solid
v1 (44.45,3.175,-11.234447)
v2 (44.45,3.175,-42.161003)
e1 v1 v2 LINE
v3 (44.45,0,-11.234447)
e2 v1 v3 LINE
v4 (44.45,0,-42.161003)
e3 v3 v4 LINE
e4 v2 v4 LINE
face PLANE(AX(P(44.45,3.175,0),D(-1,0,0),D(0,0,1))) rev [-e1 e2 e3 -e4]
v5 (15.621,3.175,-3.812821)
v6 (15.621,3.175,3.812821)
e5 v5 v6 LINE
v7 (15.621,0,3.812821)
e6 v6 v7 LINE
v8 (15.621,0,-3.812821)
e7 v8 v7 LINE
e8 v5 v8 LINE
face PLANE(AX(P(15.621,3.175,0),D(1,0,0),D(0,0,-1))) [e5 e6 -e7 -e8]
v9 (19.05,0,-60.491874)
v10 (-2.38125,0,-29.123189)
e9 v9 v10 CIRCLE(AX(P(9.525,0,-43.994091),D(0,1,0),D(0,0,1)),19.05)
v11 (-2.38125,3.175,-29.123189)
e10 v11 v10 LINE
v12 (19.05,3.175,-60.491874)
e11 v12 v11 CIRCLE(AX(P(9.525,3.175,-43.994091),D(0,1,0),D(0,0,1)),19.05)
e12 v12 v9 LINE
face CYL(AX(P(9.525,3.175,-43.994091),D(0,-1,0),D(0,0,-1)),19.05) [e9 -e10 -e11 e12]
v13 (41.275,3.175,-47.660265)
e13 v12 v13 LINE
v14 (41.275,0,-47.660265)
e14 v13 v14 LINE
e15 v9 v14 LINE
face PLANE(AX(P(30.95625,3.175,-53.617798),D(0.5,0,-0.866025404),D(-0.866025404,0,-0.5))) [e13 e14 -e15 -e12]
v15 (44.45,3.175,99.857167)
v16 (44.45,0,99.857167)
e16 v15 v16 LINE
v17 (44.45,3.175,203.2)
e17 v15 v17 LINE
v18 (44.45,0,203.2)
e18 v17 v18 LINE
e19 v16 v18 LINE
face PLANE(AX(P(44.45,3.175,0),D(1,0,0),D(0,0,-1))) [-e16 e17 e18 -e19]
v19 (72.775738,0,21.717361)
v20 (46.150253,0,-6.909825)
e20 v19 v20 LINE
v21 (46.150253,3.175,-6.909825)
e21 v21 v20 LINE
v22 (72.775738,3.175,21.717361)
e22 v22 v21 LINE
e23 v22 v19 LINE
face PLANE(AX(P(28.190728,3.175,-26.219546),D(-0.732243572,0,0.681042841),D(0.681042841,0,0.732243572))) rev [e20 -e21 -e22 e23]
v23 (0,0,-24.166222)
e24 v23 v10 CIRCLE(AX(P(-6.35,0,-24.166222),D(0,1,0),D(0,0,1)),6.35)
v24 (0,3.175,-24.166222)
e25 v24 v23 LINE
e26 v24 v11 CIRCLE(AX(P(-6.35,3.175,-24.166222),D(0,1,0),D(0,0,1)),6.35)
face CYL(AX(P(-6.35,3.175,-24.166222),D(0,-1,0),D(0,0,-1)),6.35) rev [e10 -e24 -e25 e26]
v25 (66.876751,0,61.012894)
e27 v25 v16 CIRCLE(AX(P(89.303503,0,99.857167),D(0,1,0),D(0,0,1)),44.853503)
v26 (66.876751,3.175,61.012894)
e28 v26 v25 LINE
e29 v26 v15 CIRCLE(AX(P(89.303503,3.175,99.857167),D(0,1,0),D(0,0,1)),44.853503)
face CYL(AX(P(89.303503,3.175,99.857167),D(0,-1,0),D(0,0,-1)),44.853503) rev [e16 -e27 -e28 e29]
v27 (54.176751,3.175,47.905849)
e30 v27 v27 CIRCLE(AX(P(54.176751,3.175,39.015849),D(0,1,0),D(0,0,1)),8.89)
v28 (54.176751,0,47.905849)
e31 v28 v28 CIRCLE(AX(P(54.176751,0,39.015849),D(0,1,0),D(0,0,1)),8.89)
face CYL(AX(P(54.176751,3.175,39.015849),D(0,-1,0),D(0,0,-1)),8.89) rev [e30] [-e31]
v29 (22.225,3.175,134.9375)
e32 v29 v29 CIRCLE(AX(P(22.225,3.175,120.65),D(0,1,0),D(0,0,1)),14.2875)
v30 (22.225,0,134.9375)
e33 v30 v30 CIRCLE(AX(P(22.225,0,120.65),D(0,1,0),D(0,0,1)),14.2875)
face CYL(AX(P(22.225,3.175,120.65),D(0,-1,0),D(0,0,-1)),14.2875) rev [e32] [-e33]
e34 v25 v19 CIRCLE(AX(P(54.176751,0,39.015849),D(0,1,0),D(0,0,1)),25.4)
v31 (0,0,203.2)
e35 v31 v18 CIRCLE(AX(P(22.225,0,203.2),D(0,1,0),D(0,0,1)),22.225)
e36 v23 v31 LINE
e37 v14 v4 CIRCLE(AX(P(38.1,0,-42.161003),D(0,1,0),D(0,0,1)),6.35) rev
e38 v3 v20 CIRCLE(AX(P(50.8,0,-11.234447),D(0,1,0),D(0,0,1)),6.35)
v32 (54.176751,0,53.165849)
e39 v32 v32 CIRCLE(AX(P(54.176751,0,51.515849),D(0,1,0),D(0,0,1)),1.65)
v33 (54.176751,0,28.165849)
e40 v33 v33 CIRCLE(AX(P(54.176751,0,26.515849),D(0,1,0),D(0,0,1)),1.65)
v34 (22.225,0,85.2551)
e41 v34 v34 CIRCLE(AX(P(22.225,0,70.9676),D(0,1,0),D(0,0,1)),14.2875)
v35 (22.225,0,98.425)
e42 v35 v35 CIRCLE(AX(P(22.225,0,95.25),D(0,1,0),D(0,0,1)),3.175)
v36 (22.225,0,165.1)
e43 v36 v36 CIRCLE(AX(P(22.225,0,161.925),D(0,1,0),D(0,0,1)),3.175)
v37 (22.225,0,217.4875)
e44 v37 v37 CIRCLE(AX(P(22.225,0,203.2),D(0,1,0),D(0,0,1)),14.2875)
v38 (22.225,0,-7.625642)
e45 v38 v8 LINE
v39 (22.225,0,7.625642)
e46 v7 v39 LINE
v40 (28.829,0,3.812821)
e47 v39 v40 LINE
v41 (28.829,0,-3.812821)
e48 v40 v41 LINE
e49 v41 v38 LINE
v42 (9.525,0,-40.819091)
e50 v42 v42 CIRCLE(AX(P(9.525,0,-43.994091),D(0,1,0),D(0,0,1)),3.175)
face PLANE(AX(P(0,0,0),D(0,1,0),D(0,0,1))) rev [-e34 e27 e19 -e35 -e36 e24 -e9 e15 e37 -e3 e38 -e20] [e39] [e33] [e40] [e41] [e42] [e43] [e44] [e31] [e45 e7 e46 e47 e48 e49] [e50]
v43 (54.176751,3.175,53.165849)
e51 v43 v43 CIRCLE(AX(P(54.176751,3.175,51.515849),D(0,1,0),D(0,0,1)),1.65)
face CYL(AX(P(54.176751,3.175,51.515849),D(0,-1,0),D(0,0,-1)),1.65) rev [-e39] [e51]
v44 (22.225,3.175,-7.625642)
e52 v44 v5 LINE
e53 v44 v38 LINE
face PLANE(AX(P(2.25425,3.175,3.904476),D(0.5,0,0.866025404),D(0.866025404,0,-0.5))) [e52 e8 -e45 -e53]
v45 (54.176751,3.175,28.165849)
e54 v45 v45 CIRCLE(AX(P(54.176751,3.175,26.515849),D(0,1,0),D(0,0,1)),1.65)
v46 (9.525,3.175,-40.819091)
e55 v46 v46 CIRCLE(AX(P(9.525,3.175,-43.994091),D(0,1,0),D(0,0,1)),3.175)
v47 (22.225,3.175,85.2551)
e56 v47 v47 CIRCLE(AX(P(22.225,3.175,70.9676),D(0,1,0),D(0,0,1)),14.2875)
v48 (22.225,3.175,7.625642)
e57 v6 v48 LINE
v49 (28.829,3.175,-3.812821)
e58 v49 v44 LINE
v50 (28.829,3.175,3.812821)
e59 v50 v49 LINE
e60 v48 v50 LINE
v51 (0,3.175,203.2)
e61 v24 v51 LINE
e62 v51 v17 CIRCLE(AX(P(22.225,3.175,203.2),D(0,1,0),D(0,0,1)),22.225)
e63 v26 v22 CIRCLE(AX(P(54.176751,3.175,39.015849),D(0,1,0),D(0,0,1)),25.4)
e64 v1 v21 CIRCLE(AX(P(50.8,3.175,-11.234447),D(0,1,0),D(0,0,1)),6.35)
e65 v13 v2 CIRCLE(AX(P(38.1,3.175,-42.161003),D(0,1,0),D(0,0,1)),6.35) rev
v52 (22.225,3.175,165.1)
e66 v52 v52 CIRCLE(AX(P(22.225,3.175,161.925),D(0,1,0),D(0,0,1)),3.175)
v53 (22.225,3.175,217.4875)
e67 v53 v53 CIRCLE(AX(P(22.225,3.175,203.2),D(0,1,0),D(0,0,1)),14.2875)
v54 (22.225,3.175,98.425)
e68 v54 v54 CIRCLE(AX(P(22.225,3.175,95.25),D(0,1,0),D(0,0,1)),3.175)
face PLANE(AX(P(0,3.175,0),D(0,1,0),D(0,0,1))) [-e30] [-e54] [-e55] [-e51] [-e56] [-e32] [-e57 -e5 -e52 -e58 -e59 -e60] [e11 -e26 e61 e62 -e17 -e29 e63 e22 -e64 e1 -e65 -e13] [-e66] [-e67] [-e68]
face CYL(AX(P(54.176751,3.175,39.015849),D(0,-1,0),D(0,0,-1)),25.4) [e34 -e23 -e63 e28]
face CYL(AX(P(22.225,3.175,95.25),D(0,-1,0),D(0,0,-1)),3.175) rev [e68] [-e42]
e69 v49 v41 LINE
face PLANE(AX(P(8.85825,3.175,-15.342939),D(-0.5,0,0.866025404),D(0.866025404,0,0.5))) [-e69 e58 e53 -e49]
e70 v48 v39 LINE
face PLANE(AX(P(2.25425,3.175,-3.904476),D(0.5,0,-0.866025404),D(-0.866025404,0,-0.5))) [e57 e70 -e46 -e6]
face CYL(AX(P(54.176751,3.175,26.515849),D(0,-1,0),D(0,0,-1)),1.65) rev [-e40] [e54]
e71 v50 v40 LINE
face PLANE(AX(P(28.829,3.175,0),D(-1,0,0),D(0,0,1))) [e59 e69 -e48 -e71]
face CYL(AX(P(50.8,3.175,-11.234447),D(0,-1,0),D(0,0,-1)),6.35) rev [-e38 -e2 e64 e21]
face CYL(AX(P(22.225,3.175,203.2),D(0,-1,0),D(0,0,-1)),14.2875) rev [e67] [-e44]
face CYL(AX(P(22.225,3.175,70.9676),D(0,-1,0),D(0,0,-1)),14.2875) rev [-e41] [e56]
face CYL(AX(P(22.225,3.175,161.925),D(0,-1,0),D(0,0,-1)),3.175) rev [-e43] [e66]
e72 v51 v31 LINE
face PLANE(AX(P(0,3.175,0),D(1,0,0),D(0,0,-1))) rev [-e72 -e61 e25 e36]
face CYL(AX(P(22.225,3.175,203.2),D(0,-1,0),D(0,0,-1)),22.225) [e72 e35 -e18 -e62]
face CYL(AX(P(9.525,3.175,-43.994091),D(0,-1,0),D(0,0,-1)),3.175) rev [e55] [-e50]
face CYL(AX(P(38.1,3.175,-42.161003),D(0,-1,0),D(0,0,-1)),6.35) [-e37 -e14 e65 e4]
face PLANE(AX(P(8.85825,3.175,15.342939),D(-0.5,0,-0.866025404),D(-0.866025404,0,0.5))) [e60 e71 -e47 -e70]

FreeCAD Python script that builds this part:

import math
import FreeCAD as App
import Part
import Sketcher
from FreeCAD import Vector
Q = App.Units.Quantity


def add_polygon(sketch, points):
    """Adds a closed chain of lines whose ends are joined by coincident constraints."""
    first, n = sketch.GeometryCount, len(points)
    for a, b in zip(points, points[1:] + points[:1]):
        sketch.addGeometry(Part.LineSegment(App.Vector(*a, 0), App.Vector(*b, 0)), False)
    for i in range(n):
        sketch.addConstraint(Sketcher.Constraint("Coincident", first + i, 2, first + (i + 1) % n, 1))

doc = App.newDocument("Part")
params = doc.addObject("Spreadsheet::Sheet", "Params")
for row, (alias, value) in enumerate([
    ("sketch1_radius", "1 in"),
    ("sketch1_diameter", "0.7 in"),
    ("sketch1_diameter2", "0.25 in"),
    ("sketch1_radius2", "0.25 in"),
    ("sketch1_radius3", "0.75 in"),
    ("pad1_length", "0.125 in"),
], start=1):
    params.set(f"A{row}", alias)
    params.set(f"B{row}", "=" + value)
    params.setAlias(f"B{row}", alias)

body = doc.addObject("PartDesign::Body", "Body")

sketch1 = body.newObject("Sketcher::SketchObject", "Sketch")
sketch1.AttachmentSupport = (doc.getObject("XZ_Plane"), [""])
sketch1.MapMode = "FlatFace"
sketch1.addGeometry(Part.LineSegment(Vector(0, -24.166222, 0), Vector(0, 203.2, 0)), False)
sketch1.addGeometry(Part.ArcOfCircle(Part.Circle(Vector(22.225, 203.2, 0), Vector(0, 0, 1), 22.225), math.radians(0), math.radians(180)), False)
sketch1.addGeometry(Part.LineSegment(Vector(44.45, 203.2, 0), Vector(44.45, 99.857167, 0)), False)
sketch1.addGeometry(Part.ArcOfCircle(Part.Circle(Vector(89.303503, 99.857167, 0), Vector(0, 0, 1), 44.853503), math.radians(180), math.radians(240)), False)
sketch1.addGeometry(Part.ArcOfCircle(Part.Circle(Vector(54.176751, 39.015849, 0), Vector(0, 0, 1), 25.4), math.radians(-42.925188), math.radians(60)), False)
sketch1.addGeometry(Part.LineSegment(Vector(72.775738, 21.717361, 0), Vector(46.150253, -6.909825, 0)), False)
sketch1.addGeometry(Part.ArcOfCircle(Part.Circle(Vector(50.8, -11.234447, 0), Vector(0, 0, 1), 6.35), math.radians(137.074812), math.radians(180)), False)
sketch1.addGeometry(Part.LineSegment(Vector(44.45, -11.234447, 0), Vector(44.45, -42.161003, 0)), False)
sketch1.addGeometry(Part.ArcOfCircle(Part.Circle(Vector(38.1, -42.161003, 0), Vector(0, 0, 1), 6.35), math.radians(-60), math.radians(0)), False)
sketch1.addGeometry(Part.LineSegment(Vector(41.275, -47.660265, 0), Vector(19.05, -60.491874, 0)), False)
sketch1.addGeometry(Part.ArcOfCircle(Part.Circle(Vector(9.525, -43.994091, 0), Vector(0, 0, 1), 19.05), math.radians(128.682187), math.radians(300)), False)
sketch1.addGeometry(Part.ArcOfCircle(Part.Circle(Vector(-6.35, -24.166222, 0), Vector(0, 0, 1), 6.35), math.radians(-51.317813), math.radians(0)), False)
sketch1.addGeometry(Part.Circle(Vector(22.225, 203.2, 0), Vector(0, 0, 1), 14.2875), False)
sketch1.addGeometry(Part.Circle(Vector(22.225, 161.925, 0), Vector(0, 0, 1), 3.175), False)
sketch1.addGeometry(Part.Circle(Vector(22.225, 120.65, 0), Vector(0, 0, 1), 14.2875), False)
sketch1.addGeometry(Part.Circle(Vector(22.225, 95.25, 0), Vector(0, 0, 1), 3.175), False)
sketch1.addGeometry(Part.Circle(Vector(22.225, 70.9676, 0), Vector(0, 0, 1), 14.2875), False)
sketch1.addGeometry(Part.Circle(Vector(9.525, -43.994091, 0), Vector(0, 0, 1), 3.175), False)
add_polygon(sketch1, [(28.829, 3.812821), (22.225, 7.625642), (15.621, 3.812821), (15.621, -3.812821), (22.225, -7.625642), (28.829, -3.812821)])
sketch1.addGeometry(Part.Circle(Vector(54.176751, 51.515849, 0), Vector(0, 0, 1), 1.65), False)
sketch1.addGeometry(Part.Circle(Vector(54.176751, 39.015849, 0), Vector(0, 0, 1), 8.89), False)
sketch1.addGeometry(Part.Circle(Vector(54.176751, 26.515849, 0), Vector(0, 0, 1), 1.65), False)
sketch1.addConstraint([
    Sketcher.Constraint("Tangent", 0, 2, 1, 2),
    Sketcher.Constraint("Tangent", 1, 1, 2, 1),
    Sketcher.Constraint("Tangent", 2, 2, 3, 1),
    Sketcher.Constraint("Tangent", 3, 2, 4, 2),
    Sketcher.Constraint("Tangent", 4, 1, 5, 1),
    Sketcher.Constraint("Tangent", 5, 2, 6, 1),
    Sketcher.Constraint("Tangent", 6, 2, 7, 1),
    Sketcher.Constraint("Tangent", 7, 2, 8, 2),
    Sketcher.Constraint("Tangent", 8, 1, 9, 1),
    Sketcher.Constraint("Tangent", 9, 2, 10, 2),
    Sketcher.Constraint("Tangent", 10, 1, 11, 1),
    Sketcher.Constraint("Tangent", 11, 2, 0, 1),
    Sketcher.Constraint("Vertical", 0),
    Sketcher.Constraint("Vertical", 2),
    Sketcher.Constraint("Vertical", 7),
    Sketcher.Constraint("Vertical", 20),
    Sketcher.Constraint("Vertical", 23),
    Sketcher.Constraint("Coincident", 12, 3, 1, 3),
    Sketcher.Constraint("Coincident", 17, 3, 10, 3),
    Sketcher.Constraint("Coincident", 25, 3, 4, 3),
    Sketcher.Constraint("Equal", 6, 8),
    Sketcher.Constraint("Equal", 8, 11),
    Sketcher.Constraint("Equal", 12, 14),
    Sketcher.Constraint("Equal", 13, 15),
    Sketcher.Constraint("Equal", 14, 16),
    Sketcher.Constraint("Equal", 15, 17),
    Sketcher.Constraint("Equal", 24, 26),
    Sketcher.Constraint("Symmetric", 18, 2, 21, 2, -1),
    Sketcher.Constraint("PointOnObject", 0, 2, -2),
    Sketcher.Constraint("Parallel", 9, 19),
    Sketcher.Constraint("Parallel", 18, 21),
    Sketcher.Constraint("Parallel", 19, 22),
    Sketcher.Constraint("Horizontal", 20, 2, 22, 2),
    Sketcher.Constraint("Horizontal", 19, 2, 23, 2),
    Sketcher.Constraint("Vertical", 12, 3, 13, 3),
    Sketcher.Constraint("Vertical", 13, 3, 14, 3),
    Sketcher.Constraint("Vertical", 14, 3, 15, 3),
    Sketcher.Constraint("Vertical", 15, 3, 16, 3),
    Sketcher.Constraint("Vertical", 4, 3, 24, 3),
    Sketcher.Constraint("Vertical", 25, 3, 26, 3),
    Sketcher.Constraint("Vertical", 2, 2, 6, 2),
    Sketcher.Constraint("Vertical", 16, 3, 18, 2),
    Sketcher.Constraint("Radius", 4, Q("1 in")),
    Sketcher.Constraint("Diameter", 25, Q("0.7 in")),
    Sketcher.Constraint("Diameter", 13, Q("0.25 in")),
    Sketcher.Constraint("Radius", 6, Q("0.25 in")),
    Sketcher.Constraint("Radius", 10, Q("0.75 in")),
    Sketcher.Constraint("Diameter", 12, Q("1.125 in")),
    Sketcher.Constraint("DistanceY", -1, 1, 1, 3, Q("8 in")),
    Sketcher.Constraint("DistanceX", -1, 1, 6, 3, Q("2 in")),
    Sketcher.Constraint("Angle", 9, Q("-150 deg")),
    Sketcher.Constraint("DistanceY", 15, 3, 14, 3, Q("1 in")),
    Sketcher.Constraint("DistanceX", 9, 2, 7, 2, Q("1 in")),
    Sketcher.Constraint("DistanceX", 24, 3, 3, 2, Q("0.5 in")),
    Sketcher.Constraint("Diameter", 24, 3.3),
    Sketcher.Constraint("DistanceY", -1, 1, 14, 3, Q("4.75 in")),
    Sketcher.Constraint("DistanceX", 19, 2, 18, 2, Q("0.26 in")),
    Sketcher.Constraint("DistanceY", -1, 1, 13, 3, Q("6.375 in")),
    Sketcher.Constraint("DistanceY", -1, 1, 16, 3, Q("2.794 in")),
    Sketcher.Constraint("Radius", 3, 44.853503),
    Sketcher.Constraint("DistanceY", 0, 1, 0, 2, 227.366222),
    Sketcher.Constraint("DistanceY", 4, 3, 24, 3, 12.5),
    Sketcher.Constraint("DistanceY", 26, 3, 4, 3, 12.5),
    Sketcher.Constraint("DistanceY", 11, 2, 20, 2, 20.353401),
    Sketcher.Constraint("Distance", 5, 39.095169),
    Sketcher.Constraint("DistanceY", 2, 2, 2, 1, 103.342833),
])
sketch1.setExpression("Constraints[48]", "Params.sketch1_radius")
sketch1.setExpression("Constraints[49]", "Params.sketch1_diameter")
sketch1.setExpression("Constraints[50]", "Params.sketch1_diameter2")
sketch1.setExpression("Constraints[51]", "Params.sketch1_radius2")
sketch1.setExpression("Constraints[52]", "Params.sketch1_radius3")
pad1 = body.newObject("PartDesign::Pad", "Pad")
pad1.Profile = sketch1
pad1.setExpression("Length", "Params.pad1_length")
pad1.Reversed = True

doc.recompute()
